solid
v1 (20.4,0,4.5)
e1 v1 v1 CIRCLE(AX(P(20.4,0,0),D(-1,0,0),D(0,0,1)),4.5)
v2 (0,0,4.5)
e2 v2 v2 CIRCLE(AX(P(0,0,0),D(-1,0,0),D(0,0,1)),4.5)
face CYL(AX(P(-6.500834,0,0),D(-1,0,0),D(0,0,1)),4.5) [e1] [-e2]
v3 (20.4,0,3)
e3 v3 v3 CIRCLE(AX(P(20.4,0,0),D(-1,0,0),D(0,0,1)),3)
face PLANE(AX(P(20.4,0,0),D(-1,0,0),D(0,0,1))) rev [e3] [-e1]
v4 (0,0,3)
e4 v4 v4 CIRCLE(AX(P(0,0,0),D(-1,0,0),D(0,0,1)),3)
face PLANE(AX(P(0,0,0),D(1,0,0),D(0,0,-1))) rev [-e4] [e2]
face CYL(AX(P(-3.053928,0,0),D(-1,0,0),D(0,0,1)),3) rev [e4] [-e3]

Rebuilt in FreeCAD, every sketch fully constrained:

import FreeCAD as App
import Part
import Sketcher
from FreeCAD import Vector


def add_polygon(sketch, points):
    """Adds a closed chain of lines whose ends are joined by coincident constraints."""
    first, n = sketch.GeometryCount, len(points)
    for a, b in zip(points, points[1:] + points[:1]):
        sketch.addGeometry(Part.LineSegment(App.Vector(*a, 0), App.Vector(*b, 0)), False)
    for i in range(n):
        sketch.addConstraint(Sketcher.Constraint("Coincident", first + i, 2, first + (i + 1) % n, 1))

doc = App.newDocument("Part")
body = doc.addObject("PartDesign::Body", "Body")

# Sketch on XY plane
sketch1 = body.newObject("Sketcher::SketchObject", "Sketch")
sketch1.AttachmentSupport = (doc.getObject("XY_Plane"), [""])
sketch1.MapMode = "FlatFace"
add_polygon(sketch1, [(0, 4.5), (0, 0), (20.4, 0), (20.4, 4.5)])  # lines 0-3
sketch1.addConstraint(Sketcher.Constraint("Vertical", 0))
sketch1.addConstraint(Sketcher.Constraint("Horizontal", 1))
sketch1.addConstraint(Sketcher.Constraint("Vertical", 2))
sketch1.addConstraint(Sketcher.Constraint("Horizontal", 3))
sketch1.addConstraint(Sketcher.Constraint("Coincident", 0, 2, -1, 1))
sketch1.addConstraint(Sketcher.Constraint("DistanceX", 1, 1, 1, 2, 20.4))
sketch1.addConstraint(Sketcher.Constraint("DistanceY", 0, 2, 0, 1, 4.5))
revolution = body.newObject("PartDesign::Revolution", "Revolution")
revolution.Profile = sketch1
revolution.ReferenceAxis = (sketch1, ["H_Axis"])
revolution.Angle = 360

# Sketch on XY plane
sketch2 = body.newObject("Sketcher::SketchObject", "Sketch001")
sketch2.AttachmentSupport = (doc.getObject("XY_Plane"), [""])
sketch2.MapMode = "FlatFace"
add_polygon(sketch2, [(0, 3), (0, 0), (20.4, 0), (20.4, 3)])  # lines 0-3
sketch2.addConstraint(Sketcher.Constraint("Vertical", 0))
sketch2.addConstraint(Sketcher.Constraint("Horizontal", 1))
sketch2.addConstraint(Sketcher.Constraint("Vertical", 2))
sketch2.addConstraint(Sketcher.Constraint("Horizontal", 3))
sketch2.addConstraint(Sketcher.Constraint("Coincident", 0, 2, -1, 1))
sketch2.addConstraint(Sketcher.Constraint("DistanceY", 0, 2, 0, 1, 3.0))
sketch2.addConstraint(Sketcher.Constraint("DistanceX", 1, 1, 1, 2, 20.4))
groove = body.newObject("PartDesign::Groove", "Groove")
groove.Profile = sketch2
groove.ReferenceAxis = (sketch2, ["H_Axis"])
groove.Angle = 360

doc.recompute()
